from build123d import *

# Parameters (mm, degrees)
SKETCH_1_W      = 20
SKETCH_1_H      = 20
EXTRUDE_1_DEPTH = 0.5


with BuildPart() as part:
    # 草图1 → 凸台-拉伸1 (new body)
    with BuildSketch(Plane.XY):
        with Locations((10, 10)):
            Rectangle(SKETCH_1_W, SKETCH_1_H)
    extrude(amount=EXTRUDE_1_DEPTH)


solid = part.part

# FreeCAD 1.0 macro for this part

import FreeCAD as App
import Part
import Sketcher
Q = App.Units.Quantity

doc = App.newDocument("Part")
body = doc.addObject("PartDesign::Body", "Body")

# Sketch on XY plane
sketch1 = body.newObject("Sketcher::SketchObject", "Sketch")
sketch1.AttachmentSupport = (doc.getObject("XY_Plane"), [""])
sketch1.MapMode = "FlatFace"
sketch1.addGeometry([
    Part.LineSegment(App.Vector(0, 20, 0), App.Vector(0, 0, 0)),
    Part.LineSegment(App.Vector(0, 0, 0), App.Vector(20, 0, 0)),
    Part.LineSegment(App.Vector(20, 0, 0), App.Vector(20, 20, 0)),
    Part.LineSegment(App.Vector(20, 20, 0), App.Vector(0, 20, 0)),
], False)
sketch1.addConstraint([
    Sketcher.Constraint("Coincident", 0, 2, 1, 1),
    Sketcher.Constraint("Coincident", 1, 2, 2, 1),
    Sketcher.Constraint("Coincident", 2, 2, 3, 1),
    Sketcher.Constraint("Coincident", 3, 2, 0, 1),
    Sketcher.Constraint("Vertical", 0),
    Sketcher.Constraint("Horizontal", 1),
    Sketcher.Constraint("Vertical", 2),
    Sketcher.Constraint("Horizontal", 3),
    Sketcher.Constraint("Coincident", 0, 2, -1, 1),
    Sketcher.Constraint("Equal", 3, 0),
    Sketcher.Constraint("DistanceX", 1, 1, 1, 2, Q("20 mm")),
])
pad1 = body.newObject("PartDesign::Pad", "Pad")
pad1.Profile = sketch1
pad1.Length = 0.5

doc.recompute()
